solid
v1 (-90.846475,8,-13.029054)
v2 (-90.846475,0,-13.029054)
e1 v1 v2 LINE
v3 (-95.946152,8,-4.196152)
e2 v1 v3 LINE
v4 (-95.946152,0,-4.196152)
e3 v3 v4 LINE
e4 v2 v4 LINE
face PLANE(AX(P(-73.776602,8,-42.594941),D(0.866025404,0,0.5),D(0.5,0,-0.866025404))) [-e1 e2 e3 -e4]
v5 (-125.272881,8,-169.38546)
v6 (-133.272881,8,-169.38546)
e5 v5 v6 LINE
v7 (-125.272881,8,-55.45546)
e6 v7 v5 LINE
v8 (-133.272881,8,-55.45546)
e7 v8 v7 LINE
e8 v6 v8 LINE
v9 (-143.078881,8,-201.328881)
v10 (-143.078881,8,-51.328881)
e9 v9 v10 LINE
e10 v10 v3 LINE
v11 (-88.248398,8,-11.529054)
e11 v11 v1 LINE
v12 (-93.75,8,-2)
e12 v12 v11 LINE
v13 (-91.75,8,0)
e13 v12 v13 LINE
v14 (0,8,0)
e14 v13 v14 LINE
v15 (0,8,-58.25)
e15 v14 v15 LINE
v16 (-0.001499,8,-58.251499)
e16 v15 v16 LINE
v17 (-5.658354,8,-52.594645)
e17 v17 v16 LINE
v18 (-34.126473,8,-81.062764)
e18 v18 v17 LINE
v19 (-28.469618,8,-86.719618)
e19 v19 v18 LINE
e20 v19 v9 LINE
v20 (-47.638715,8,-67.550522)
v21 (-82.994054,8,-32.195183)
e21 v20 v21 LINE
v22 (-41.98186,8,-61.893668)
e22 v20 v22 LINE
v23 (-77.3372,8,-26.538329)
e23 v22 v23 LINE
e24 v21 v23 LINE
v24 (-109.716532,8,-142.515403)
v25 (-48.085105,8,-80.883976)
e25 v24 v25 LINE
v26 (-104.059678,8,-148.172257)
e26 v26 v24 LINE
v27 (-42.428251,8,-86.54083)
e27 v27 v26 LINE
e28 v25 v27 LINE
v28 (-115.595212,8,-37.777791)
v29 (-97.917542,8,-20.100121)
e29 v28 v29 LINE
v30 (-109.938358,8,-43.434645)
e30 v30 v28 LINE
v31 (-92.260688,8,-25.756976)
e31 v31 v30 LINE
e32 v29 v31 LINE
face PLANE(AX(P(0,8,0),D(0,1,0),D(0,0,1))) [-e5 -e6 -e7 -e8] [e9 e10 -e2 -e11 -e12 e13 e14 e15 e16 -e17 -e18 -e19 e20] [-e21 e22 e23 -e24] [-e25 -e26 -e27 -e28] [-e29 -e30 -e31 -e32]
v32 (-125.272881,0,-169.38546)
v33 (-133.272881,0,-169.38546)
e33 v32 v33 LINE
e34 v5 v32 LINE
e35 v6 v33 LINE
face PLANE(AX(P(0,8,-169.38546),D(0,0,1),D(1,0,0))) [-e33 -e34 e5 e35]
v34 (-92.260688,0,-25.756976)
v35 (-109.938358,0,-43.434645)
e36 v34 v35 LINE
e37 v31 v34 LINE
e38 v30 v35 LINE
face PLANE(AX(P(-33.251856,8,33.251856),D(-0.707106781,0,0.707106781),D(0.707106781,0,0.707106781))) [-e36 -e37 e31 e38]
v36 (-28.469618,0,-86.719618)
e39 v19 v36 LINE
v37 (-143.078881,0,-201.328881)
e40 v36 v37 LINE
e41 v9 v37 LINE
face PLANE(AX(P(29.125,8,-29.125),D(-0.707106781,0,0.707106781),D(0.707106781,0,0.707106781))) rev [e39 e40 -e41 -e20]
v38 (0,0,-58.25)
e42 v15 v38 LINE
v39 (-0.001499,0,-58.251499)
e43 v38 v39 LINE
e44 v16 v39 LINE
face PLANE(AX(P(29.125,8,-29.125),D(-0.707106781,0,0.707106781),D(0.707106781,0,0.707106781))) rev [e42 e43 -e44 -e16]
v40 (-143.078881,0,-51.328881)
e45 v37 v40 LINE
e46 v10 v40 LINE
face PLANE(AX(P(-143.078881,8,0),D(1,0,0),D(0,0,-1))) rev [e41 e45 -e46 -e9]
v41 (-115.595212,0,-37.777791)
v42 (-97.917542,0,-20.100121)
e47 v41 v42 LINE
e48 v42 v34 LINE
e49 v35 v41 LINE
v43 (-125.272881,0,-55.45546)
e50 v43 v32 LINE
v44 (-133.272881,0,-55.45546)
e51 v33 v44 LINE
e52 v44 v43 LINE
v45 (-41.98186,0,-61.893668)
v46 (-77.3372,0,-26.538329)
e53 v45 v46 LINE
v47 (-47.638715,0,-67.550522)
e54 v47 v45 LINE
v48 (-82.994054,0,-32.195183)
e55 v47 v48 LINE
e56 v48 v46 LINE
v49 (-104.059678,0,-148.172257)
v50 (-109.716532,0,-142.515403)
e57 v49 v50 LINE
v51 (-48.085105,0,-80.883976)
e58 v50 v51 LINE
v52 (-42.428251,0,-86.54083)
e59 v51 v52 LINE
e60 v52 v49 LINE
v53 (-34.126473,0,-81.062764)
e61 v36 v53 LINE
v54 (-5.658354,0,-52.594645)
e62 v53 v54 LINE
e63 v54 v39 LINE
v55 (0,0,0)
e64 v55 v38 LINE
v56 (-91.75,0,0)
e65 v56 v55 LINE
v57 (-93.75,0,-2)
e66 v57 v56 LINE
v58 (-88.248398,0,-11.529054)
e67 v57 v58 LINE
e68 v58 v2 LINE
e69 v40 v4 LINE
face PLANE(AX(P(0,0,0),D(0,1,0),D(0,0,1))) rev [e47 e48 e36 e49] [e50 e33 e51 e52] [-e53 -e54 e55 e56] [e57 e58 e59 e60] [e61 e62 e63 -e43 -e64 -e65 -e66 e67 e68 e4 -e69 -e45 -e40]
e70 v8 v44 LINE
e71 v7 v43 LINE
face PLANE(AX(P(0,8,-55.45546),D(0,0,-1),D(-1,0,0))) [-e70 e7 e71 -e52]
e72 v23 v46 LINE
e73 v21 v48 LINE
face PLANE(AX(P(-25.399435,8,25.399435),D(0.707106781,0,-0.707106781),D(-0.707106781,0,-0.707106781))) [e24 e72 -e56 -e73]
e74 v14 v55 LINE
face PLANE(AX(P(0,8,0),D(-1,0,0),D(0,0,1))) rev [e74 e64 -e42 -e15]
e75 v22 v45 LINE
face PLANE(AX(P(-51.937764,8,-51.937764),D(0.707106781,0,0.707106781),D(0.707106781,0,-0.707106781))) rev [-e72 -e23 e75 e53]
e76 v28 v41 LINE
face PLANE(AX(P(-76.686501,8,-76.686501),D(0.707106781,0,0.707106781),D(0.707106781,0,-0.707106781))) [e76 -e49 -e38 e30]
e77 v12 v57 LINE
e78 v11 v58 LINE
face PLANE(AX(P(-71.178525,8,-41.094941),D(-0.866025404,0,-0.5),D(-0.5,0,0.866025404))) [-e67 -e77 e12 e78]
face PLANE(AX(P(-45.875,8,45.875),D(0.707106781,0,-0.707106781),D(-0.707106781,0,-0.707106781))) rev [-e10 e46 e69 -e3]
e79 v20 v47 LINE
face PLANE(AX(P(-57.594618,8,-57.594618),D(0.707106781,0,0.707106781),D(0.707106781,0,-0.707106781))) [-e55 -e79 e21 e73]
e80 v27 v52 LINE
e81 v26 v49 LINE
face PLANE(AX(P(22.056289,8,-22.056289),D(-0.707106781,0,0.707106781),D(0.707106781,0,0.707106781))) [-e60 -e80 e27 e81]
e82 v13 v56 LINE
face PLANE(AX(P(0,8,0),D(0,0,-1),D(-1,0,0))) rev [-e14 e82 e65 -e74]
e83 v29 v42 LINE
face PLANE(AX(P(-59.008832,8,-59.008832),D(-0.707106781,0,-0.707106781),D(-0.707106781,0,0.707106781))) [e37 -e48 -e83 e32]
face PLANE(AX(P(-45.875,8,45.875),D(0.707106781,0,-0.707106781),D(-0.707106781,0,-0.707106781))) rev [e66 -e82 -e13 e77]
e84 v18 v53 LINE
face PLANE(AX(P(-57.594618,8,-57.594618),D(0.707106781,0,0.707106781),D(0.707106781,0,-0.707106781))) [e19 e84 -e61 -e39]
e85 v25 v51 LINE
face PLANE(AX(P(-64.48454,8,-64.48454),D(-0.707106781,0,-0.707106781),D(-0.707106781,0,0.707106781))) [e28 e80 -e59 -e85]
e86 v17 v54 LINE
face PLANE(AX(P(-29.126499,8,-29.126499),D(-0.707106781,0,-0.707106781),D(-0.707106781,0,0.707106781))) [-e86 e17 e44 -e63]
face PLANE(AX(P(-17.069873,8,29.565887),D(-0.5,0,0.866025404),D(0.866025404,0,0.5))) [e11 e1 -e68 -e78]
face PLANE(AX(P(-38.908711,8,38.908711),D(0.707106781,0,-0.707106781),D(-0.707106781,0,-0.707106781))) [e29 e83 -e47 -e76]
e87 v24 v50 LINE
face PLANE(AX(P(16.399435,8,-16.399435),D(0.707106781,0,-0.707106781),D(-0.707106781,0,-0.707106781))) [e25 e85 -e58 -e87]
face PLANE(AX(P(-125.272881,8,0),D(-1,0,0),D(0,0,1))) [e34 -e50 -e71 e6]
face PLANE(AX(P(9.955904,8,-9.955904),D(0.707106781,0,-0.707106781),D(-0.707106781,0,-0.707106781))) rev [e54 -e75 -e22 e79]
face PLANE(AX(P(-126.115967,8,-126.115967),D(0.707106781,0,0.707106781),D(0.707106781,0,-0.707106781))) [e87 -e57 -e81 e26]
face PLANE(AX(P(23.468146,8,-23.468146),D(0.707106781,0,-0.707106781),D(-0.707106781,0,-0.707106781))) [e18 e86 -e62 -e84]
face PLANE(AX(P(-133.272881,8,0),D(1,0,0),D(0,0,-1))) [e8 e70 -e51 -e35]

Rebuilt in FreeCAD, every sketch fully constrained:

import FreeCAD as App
import Part
import Sketcher

V = App.Vector
Q = App.Units.Quantity


def add_polygon(sketch, points):
    """Adds a closed chain of lines whose ends are joined by coincident constraints."""
    first, n = sketch.GeometryCount, len(points)
    for a, b in zip(points, points[1:] + points[:1]):
        sketch.addGeometry(Part.LineSegment(App.Vector(*a, 0), App.Vector(*b, 0)), False)
    for i in range(n):
        sketch.addConstraint(Sketcher.Constraint("Coincident", first + i, 2, first + (i + 1) % n, 1))

doc = App.newDocument("Part")
params = doc.addObject("Spreadsheet::Sheet", "Params")
for row, (alias, value) in enumerate([
    ("sketch1_width", "8 mm"),
    ("sketch1_height", "150 mm"),
    ("sketch1_length", "8 mm"),
    ("sketch1_length2", "3 mm"),
    ("sketch1_length3", "25 mm"),
    ("pad1_length", "8 mm"),
], start=1):
    params.set(f"A{row}", alias)
    params.set(f"B{row}", "=" + value)
    params.setAlias(f"B{row}", alias)

body = doc.addObject("PartDesign::Body", "Body")

# Sketch on XZ plane
sketch1 = body.newObject("Sketcher::SketchObject", "Sketch")
sketch1.AttachmentSupport = (doc.getObject("XZ_Plane"), [""])
sketch1.MapMode = "FlatFace"
add_polygon(sketch1, [(-91.75, 0), (0, 0), (0, -58.25), (-0.0015, -58.2515), (-5.6584, -52.5946), (-34.1265, -81.0628), (-28.4696, -86.7196), (-143.0789, -201.3289), (-143.0789, -51.3289), (-95.9462, -4.1962), (-90.8465, -13.0291), (-88.2484, -11.5291), (-93.75, -2)])  # lines 0-12
add_polygon(sketch1, [(-92.2607, -25.757), (-97.9175, -20.1001), (-115.5952, -37.7778), (-109.9384, -43.4346)])  # lines 13-16
add_polygon(sketch1, [(-41.9819, -61.8937), (-77.3372, -26.5383), (-82.9941, -32.1952), (-47.6387, -67.5505)])  # lines 17-20
add_polygon(sketch1, [(-125.2729, -55.4555), (-133.2729, -55.4555), (-133.2729, -169.3855), (-125.2729, -169.3855)])  # lines 21-24
add_polygon(sketch1, [(-42.4283, -86.5408), (-48.0851, -80.884), (-109.7165, -142.5154), (-104.0597, -148.1723)])  # lines 25-28
sketch1.addConstraint([
    Sketcher.Constraint("Horizontal", 0),
    Sketcher.Constraint("Vertical", 1),
    Sketcher.Constraint("Vertical", 7),
    Sketcher.Constraint("Horizontal", 21),
    Sketcher.Constraint("Vertical", 22),
    Sketcher.Constraint("Horizontal", 23),
    Sketcher.Constraint("Vertical", 24),
    Sketcher.Constraint("Coincident", 0, 2, -1, 1),
    Sketcher.Constraint("Perpendicular", 2, 3),
    Sketcher.Constraint("Perpendicular", 3, 4),
    Sketcher.Constraint("Perpendicular", 4, 5),
    Sketcher.Constraint("Perpendicular", 5, 6),
    Sketcher.Constraint("Parallel", 6, 8),
    Sketcher.Constraint("Perpendicular", 9, 10),
    Sketcher.Constraint("Perpendicular", 10, 11),
    Sketcher.Constraint("Parallel", 8, 12),
    Sketcher.Constraint("Perpendicular", 12, 13),
    Sketcher.Constraint("Perpendicular", 13, 14),
    Sketcher.Constraint("Perpendicular", 14, 15),
    Sketcher.Constraint("Perpendicular", 15, 16),
    Sketcher.Constraint("Perpendicular", 16, 17),
    Sketcher.Constraint("Perpendicular", 17, 18),
    Sketcher.Constraint("Perpendicular", 18, 19),
    Sketcher.Constraint("Perpendicular", 19, 20),
    Sketcher.Constraint("Perpendicular", 20, 25),
    Sketcher.Constraint("Perpendicular", 25, 26),
    Sketcher.Constraint("Perpendicular", 26, 27),
    Sketcher.Constraint("Perpendicular", 27, 28),
    Sketcher.Constraint("Equal", 3, 5),
    Sketcher.Constraint("Equal", 5, 13),
    Sketcher.Constraint("Equal", 15, 18),
    Sketcher.Constraint("Equal", 20, 25),
    Sketcher.Constraint("DistanceX", 21, 2, 21, 1, Q("8 mm")),
    Sketcher.Constraint("DistanceY", 7, 1, 7, 2, Q("150 mm")),
    Sketcher.Constraint("Angle", 3, Q("135 deg")),
    Sketcher.Constraint("Angle", 9, Q("-60 deg")),
    Sketcher.Constraint("Distance", 3, Q("8 mm")),
    Sketcher.Constraint("Distance", 10, Q("3 mm")),
    Sketcher.Constraint("Distance", 14, Q("25 mm")),
    Sketcher.Constraint("Distance", 17, Q("50 mm")),
    Sketcher.Constraint("DistanceY", 11, 2, -1, 1, Q("2 mm")),
    Sketcher.Constraint("DistanceX", 0, 1, 0, 2, Q("91.75 mm")),
    Sketcher.Constraint("DistanceY", 1, 2, 1, 1, Q("58.25 mm")),
    Sketcher.Constraint("DistanceY", 22, 2, 22, 1, Q("113.93 mm")),
    Sketcher.Constraint("Distance", 4, Q("40.26 mm")),
    Sketcher.Constraint("Distance", 26, Q("87.16 mm")),
    Sketcher.Constraint("DistanceX", 7, 2, 21, 2, Q("9.806 mm")),
    Sketcher.Constraint("DistanceX", 2, 2, -1, 1, Q("0.001499 mm")),
    Sketcher.Constraint("DistanceX", 10, 2, -1, 1, Q("88.248398 mm")),
    Sketcher.Constraint("DistanceX", 17, 2, -1, 1, Q("77.3372 mm")),
    Sketcher.Constraint("DistanceX", 6, 2, -1, 1, Q("143.078881 mm")),
    Sketcher.Constraint("DistanceY", 13, 2, -1, 1, Q("20.100121 mm")),
    Sketcher.Constraint("DistanceX", 14, 2, -1, 1, Q("115.595212 mm")),
    Sketcher.Constraint("DistanceY", 17, 2, -1, 1, Q("26.538329 mm")),
    Sketcher.Constraint("DistanceY", 21, 2, -1, 1, Q("55.45546 mm")),
    Sketcher.Constraint("DistanceX", 27, 2, -1, 1, Q("104.059678 mm")),
    Sketcher.Constraint("DistanceY", 28, 2, -1, 1, Q("86.54083 mm")),
])
sketch1.setExpression("Constraints[61]", "Params.sketch1_width")
sketch1.setExpression("Constraints[62]", "Params.sketch1_height")
sketch1.setExpression("Constraints[65]", "Params.sketch1_length")
sketch1.setExpression("Constraints[66]", "Params.sketch1_length2")
sketch1.setExpression("Constraints[67]", "Params.sketch1_length3")
pad1 = body.newObject("PartDesign::Pad", "Pad")
pad1.Profile = sketch1
pad1.setExpression("Length", "Params.pad1_length")
pad1.Reversed = True

doc.recompute()
